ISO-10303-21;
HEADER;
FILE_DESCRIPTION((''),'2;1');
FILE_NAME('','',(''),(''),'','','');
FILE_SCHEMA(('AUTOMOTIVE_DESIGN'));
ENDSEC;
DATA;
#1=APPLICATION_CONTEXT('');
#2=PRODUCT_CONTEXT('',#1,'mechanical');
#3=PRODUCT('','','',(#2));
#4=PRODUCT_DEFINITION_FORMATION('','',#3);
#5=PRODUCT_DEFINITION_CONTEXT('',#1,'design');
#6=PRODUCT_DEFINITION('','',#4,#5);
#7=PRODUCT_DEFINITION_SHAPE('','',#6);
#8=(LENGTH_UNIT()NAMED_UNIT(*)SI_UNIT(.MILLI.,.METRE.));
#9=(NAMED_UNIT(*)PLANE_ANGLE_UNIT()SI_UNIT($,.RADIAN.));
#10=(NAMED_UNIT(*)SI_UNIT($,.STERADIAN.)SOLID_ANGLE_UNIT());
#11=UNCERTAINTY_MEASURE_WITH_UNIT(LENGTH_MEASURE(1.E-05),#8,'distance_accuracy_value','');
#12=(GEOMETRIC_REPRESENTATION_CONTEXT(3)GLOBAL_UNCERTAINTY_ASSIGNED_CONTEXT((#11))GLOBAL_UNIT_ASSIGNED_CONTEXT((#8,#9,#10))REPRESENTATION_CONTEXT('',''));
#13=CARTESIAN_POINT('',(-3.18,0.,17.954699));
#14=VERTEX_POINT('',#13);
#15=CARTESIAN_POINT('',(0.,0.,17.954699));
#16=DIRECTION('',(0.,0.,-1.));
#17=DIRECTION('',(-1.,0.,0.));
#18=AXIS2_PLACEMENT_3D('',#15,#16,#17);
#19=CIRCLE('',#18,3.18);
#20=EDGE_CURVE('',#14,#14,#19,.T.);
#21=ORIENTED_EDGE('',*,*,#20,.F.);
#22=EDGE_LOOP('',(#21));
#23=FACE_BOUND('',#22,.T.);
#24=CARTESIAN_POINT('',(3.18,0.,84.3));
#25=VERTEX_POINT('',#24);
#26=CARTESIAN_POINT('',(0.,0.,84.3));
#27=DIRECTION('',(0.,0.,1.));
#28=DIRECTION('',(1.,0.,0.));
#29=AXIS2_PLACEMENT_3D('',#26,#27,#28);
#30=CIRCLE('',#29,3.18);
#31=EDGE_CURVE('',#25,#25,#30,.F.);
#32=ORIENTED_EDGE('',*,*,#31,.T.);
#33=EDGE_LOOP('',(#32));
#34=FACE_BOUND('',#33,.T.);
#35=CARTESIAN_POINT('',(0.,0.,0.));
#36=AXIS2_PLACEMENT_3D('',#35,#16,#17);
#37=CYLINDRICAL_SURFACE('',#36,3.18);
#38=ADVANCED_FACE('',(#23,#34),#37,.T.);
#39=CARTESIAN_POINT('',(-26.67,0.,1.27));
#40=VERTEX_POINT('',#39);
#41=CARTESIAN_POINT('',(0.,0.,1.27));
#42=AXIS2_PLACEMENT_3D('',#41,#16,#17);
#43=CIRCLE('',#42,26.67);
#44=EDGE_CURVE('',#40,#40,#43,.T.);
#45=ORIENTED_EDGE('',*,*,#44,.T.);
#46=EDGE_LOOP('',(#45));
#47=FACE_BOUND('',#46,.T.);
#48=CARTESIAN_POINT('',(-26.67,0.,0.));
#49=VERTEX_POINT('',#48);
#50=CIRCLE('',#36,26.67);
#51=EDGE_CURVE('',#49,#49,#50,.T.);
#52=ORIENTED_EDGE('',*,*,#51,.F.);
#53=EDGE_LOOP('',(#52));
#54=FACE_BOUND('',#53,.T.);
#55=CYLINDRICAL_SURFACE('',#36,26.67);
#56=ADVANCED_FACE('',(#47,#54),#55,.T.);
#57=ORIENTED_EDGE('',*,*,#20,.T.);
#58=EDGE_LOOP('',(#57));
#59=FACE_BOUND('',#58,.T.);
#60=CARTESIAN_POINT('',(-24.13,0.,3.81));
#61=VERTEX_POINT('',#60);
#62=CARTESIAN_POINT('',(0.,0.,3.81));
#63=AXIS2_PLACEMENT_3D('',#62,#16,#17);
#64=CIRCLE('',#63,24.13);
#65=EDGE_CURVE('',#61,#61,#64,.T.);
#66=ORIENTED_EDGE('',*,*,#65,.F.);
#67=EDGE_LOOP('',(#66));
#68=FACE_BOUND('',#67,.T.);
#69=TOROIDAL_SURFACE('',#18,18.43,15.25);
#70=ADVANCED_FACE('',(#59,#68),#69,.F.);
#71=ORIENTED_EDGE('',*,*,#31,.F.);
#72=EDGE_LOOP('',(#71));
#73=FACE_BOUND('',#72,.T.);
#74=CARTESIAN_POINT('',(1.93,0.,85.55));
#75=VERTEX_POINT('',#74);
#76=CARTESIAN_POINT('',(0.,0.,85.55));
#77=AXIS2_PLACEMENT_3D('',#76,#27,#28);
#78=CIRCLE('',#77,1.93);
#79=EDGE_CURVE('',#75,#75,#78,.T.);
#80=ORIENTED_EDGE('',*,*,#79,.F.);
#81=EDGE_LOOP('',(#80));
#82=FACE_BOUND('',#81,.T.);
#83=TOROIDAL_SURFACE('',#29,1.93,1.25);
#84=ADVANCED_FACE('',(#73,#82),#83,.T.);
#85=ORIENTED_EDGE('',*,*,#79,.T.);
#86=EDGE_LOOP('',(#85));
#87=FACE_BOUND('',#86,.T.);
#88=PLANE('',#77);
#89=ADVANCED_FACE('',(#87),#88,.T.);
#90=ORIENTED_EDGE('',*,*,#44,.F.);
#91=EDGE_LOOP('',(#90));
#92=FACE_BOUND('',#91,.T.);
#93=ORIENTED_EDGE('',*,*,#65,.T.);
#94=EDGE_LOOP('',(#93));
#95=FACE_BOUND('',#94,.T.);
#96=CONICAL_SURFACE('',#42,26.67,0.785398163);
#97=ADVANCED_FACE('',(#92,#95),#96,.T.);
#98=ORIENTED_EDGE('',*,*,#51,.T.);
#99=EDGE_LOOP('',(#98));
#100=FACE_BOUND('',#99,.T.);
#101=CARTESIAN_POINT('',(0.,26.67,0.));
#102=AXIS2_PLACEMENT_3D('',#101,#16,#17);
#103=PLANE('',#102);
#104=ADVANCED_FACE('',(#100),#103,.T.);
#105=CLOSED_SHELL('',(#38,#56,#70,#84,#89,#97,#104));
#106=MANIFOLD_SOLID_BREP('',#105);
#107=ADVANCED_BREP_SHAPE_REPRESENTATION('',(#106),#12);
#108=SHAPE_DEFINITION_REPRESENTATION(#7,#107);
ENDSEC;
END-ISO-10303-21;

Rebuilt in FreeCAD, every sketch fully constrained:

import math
import FreeCAD as App
import Part
import Sketcher
from FreeCAD import Vector
Q = App.Units.Quantity


def edges_at(feature, points):
    """Names of the edges that pass closest to the given points."""
    edges = feature.Shape.Edges
    near = lambda p: min(range(len(edges)), key=lambda i: edges[i].distToShape(Part.Vertex(*p))[0])
    return sorted({f"Edge{near(p) + 1}" for p in points})

doc = App.newDocument("Part")
body = doc.addObject("PartDesign::Body", "Body")

# Sketch on YZ plane
sketch1 = body.newObject("Sketcher::SketchObject", "Sketch")
sketch1.AttachmentSupport = (doc.getObject("YZ_Plane"), [""])
sketch1.MapMode = "FlatFace"
sketch1.addGeometry([
    Part.LineSegment(Vector(0, 85.5, 0), Vector(0, 0, 0)),  # 0
    Part.LineSegment(Vector(0, 0, 0), Vector(26.7, 0, 0)),  # 1
    Part.LineSegment(Vector(26.7, 0, 0), Vector(26.7, 1.3, 0)),  # 2
    Part.LineSegment(Vector(26.7, 1.3, 0), Vector(24.1, 3.8, 0)),  # 3
    Part.ArcOfCircle(Part.Circle(Vector(18.4, 18, 0), Vector(0, 0, 1), 15.2), math.radians(180), math.radians(292)),  # 4
    Part.LineSegment(Vector(3.2, 18, 0), Vector(3.2, 85.5, 0)),  # 5
    Part.LineSegment(Vector(3.2, 85.5, 0), Vector(0, 85.5, 0)),  # 6
], False)
sketch1.addConstraint([
    Sketcher.Constraint("Coincident", 0, 2, 1, 1),
    Sketcher.Constraint("Coincident", 1, 2, 2, 1),
    Sketcher.Constraint("Coincident", 2, 2, 3, 1),
    Sketcher.Constraint("Coincident", 3, 2, 4, 2),
    Sketcher.Constraint("Tangent", 4, 1, 5, 1),
    Sketcher.Constraint("Coincident", 5, 2, 6, 1),
    Sketcher.Constraint("Coincident", 6, 2, 0, 1),
    Sketcher.Constraint("Vertical", 0),
    Sketcher.Constraint("Horizontal", 1),
    Sketcher.Constraint("Vertical", 2),
    Sketcher.Constraint("Vertical", 5),
    Sketcher.Constraint("Horizontal", 6),
    Sketcher.Constraint("Coincident", 0, 2, -1, 1),
    Sketcher.Constraint("Angle", 3, Q("135 deg")),
    Sketcher.Constraint("DistanceX", 1, 1, 1, 2, Q("1.05 in")),
    Sketcher.Constraint("DistanceY", 2, 1, 2, 2, Q("0.05 in")),
    Sketcher.Constraint("DistanceX", 3, 2, 2, 2, Q("0.1 in")),
    Sketcher.Constraint("Radius", 4, Q("15.25 mm")),
    Sketcher.Constraint("DistanceX", 6, 2, 6, 1, Q("3.18 mm")),
    Sketcher.Constraint("DistanceY", 0, 2, 0, 1, Q("85.55 mm")),
])
revolution = body.newObject("PartDesign::Revolution", "Revolution")
revolution.Profile = sketch1
revolution.ReferenceAxis = (sketch1, ["V_Axis"])
revolution.Angle = 360
doc.recompute()

fillet = body.newObject("PartDesign::Fillet", "Fillet")
fillet.Base = (revolution, edges_at(revolution, [(3.18, 0, 85.55)]))
fillet.Radius = 1.25

doc.recompute()
